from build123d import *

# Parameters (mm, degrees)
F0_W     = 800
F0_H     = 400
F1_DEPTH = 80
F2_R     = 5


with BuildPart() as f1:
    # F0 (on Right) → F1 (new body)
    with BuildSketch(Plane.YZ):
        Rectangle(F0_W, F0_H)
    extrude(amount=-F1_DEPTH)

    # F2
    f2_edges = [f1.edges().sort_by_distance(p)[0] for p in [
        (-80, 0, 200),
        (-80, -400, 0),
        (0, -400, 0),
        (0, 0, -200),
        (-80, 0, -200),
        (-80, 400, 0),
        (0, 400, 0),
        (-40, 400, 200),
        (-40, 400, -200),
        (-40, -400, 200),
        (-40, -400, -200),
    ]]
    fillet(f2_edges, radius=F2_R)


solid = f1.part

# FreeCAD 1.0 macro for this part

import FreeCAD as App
import Part
import Sketcher
Q = App.Units.Quantity


def edges_at(feature, points):
    """Names of the edges that pass closest to the given points."""
    edges = feature.Shape.Edges
    near = lambda p: min(range(len(edges)), key=lambda i: edges[i].distToShape(Part.Vertex(*p))[0])
    return sorted({f"Edge{near(p) + 1}" for p in points})


def add_polygon(sketch, points):
    """Adds a closed chain of lines whose ends are joined by coincident constraints."""
    first, n = sketch.GeometryCount, len(points)
    for a, b in zip(points, points[1:] + points[:1]):
        sketch.addGeometry(Part.LineSegment(App.Vector(*a, 0), App.Vector(*b, 0)), False)
    for i in range(n):
        sketch.addConstraint(Sketcher.Constraint("Coincident", first + i, 2, first + (i + 1) % n, 1))

doc = App.newDocument("Part")
body = doc.addObject("PartDesign::Body", "Body")

sketch1 = body.newObject("Sketcher::SketchObject", "Sketch")
sketch1.AttachmentSupport = (doc.getObject("YZ_Plane"), [""])
sketch1.MapMode = "FlatFace"
add_polygon(sketch1, [(-400, 200), (-400, -200), (400, -200), (400, 200)])
sketch1.addConstraint(Sketcher.Constraint("Vertical", 0))
sketch1.addConstraint(Sketcher.Constraint("Horizontal", 1))
sketch1.addConstraint(Sketcher.Constraint("Vertical", 2))
sketch1.addConstraint(Sketcher.Constraint("Horizontal", 3))
sketch1.addConstraint(Sketcher.Constraint("Symmetric", 0, 2, 2, 2, -1, 1))
sketch1.addConstraint(Sketcher.Constraint("DistanceX", 1, 1, 1, 2, Q("800 mm")))
sketch1.addConstraint(Sketcher.Constraint("DistanceY", 0, 2, 0, 1, Q("400 mm")))
pad1 = body.newObject("PartDesign::Pad", "Pad")
pad1.Profile = sketch1
pad1.Length = 80
pad1.Reversed = True
doc.recompute()

fillet = body.newObject("PartDesign::Fillet", "Fillet")
fillet.Base = (pad1, edges_at(pad1, [
    (-80, 0, 200),
    (-80, -400, 0),
    (0, -400, 0),
    (0, 0, -200),
    (-80, 0, -200),
    (-80, 400, 0),
    (0, 400, 0),
    (-40, 400, 200),
    (-40, 400, -200),
    (-40, -400, 200),
    (-40, -400, -200),
]))
fillet.Radius = 5

doc.recompute()
